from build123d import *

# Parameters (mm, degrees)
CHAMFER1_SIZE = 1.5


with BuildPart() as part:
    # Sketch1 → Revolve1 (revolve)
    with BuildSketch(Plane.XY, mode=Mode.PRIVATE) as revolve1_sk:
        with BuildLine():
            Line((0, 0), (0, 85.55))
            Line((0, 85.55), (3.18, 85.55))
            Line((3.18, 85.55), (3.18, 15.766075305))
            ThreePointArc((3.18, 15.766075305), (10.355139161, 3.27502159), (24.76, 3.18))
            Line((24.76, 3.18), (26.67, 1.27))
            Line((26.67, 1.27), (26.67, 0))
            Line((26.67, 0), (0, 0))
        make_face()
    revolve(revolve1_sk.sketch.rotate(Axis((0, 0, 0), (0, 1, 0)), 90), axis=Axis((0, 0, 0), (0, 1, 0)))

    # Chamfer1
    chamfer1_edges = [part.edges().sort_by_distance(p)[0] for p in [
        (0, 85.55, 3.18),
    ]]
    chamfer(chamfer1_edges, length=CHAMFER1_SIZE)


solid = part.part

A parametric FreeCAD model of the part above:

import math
import FreeCAD as App
import Part
import Sketcher
Q = App.Units.Quantity


def edges_at(feature, points):
    """Names of the edges that pass closest to the given points."""
    edges = feature.Shape.Edges
    near = lambda p: min(range(len(edges)), key=lambda i: edges[i].distToShape(Part.Vertex(*p))[0])
    return sorted({f"Edge{near(p) + 1}" for p in points})

doc = App.newDocument("Part")
body = doc.addObject("PartDesign::Body", "Body")

sketch1 = doc.addObject("Sketcher::SketchObject", "Sketch")
body.addObject(sketch1)
sketch1.AttachmentSupport = (doc.XY_Plane, [""])
sketch1.MapMode = "FlatFace"
sketch1.addGeometry([
    Part.LineSegment(App.Vector(0, 85.55, 0), App.Vector(0, 0, 0)),
    Part.LineSegment(App.Vector(0, 0, 0), App.Vector(26.67, 0, 0)),
    Part.LineSegment(App.Vector(26.67, 0, 0), App.Vector(26.67, 1.27, 0)),
    Part.LineSegment(App.Vector(26.67, 1.27, 0), App.Vector(24.76, 3.18, 0)),
    Part.ArcOfCircle(Part.Circle(App.Vector(17.64028, 15.766075, 0), App.Vector(0, 0, 1), 14.46028), math.radians(180), math.radians(299.496072)),
    Part.LineSegment(App.Vector(3.18, 15.766075, 0), App.Vector(3.18, 85.55, 0)),
    Part.LineSegment(App.Vector(3.18, 85.55, 0), App.Vector(0, 85.55, 0)),
], False)
sketch1.addConstraint([
    Sketcher.Constraint("Coincident", 0, 2, 1, 1),
    Sketcher.Constraint("Coincident", 1, 2, 2, 1),
    Sketcher.Constraint("Coincident", 2, 2, 3, 1),
    Sketcher.Constraint("Coincident", 3, 2, 4, 2),
    Sketcher.Constraint("Tangent", 4, 1, 5, 1),
    Sketcher.Constraint("Coincident", 5, 2, 6, 1),
    Sketcher.Constraint("Coincident", 6, 2, 0, 1),
    Sketcher.Constraint("Vertical", 0),
    Sketcher.Constraint("Horizontal", 1),
    Sketcher.Constraint("Vertical", 2),
    Sketcher.Constraint("Vertical", 5),
    Sketcher.Constraint("Horizontal", 6),
    Sketcher.Constraint("Coincident", 0, 2, -1, 1),
    Sketcher.Constraint("Angle", 3, Q("135 deg")),
    Sketcher.Constraint("DistanceX", 1, 1, 1, 2, Q("1.05 in")),
    Sketcher.Constraint("DistanceY", 2, 1, 2, 2, Q("0.05 in")),
    Sketcher.Constraint("Radius", 4, Q("14.46028 mm")),
    Sketcher.Constraint("DistanceX", 6, 2, 6, 1, Q("3.18 mm")),
    Sketcher.Constraint("DistanceY", 0, 2, 0, 1, Q("85.55 mm")),
    Sketcher.Constraint("DistanceX", -1, 1, 3, 2, Q("24.76 mm")),
])
revolution = doc.addObject("PartDesign::Revolution", "Revolution")
body.addObject(revolution)
revolution.Profile = sketch1
revolution.ReferenceAxis = (sketch1, ["V_Axis"])
revolution.Angle = 360
doc.recompute()

chamfer = doc.addObject("PartDesign::Chamfer", "Chamfer")
body.addObject(chamfer)
chamfer.Base = (revolution, edges_at(revolution, [(0, 85.55, 3.18)]))
chamfer.Size = 1.5

doc.recompute()
